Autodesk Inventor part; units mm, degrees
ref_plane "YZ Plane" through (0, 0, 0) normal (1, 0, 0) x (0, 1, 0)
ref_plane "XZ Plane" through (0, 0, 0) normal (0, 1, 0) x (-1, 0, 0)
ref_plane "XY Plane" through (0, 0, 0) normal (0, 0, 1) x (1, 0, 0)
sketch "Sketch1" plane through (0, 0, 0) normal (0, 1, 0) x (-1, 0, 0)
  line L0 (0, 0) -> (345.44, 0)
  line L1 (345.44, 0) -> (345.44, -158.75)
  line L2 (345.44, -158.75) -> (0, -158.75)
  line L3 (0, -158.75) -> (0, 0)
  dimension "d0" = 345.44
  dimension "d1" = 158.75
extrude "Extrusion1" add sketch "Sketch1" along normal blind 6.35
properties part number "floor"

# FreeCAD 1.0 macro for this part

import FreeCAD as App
import Part
import Sketcher
from FreeCAD import Vector
Q = App.Units.Quantity


def add_polygon(sketch, points):
    """Adds a closed chain of lines whose ends are joined by coincident constraints."""
    first, n = sketch.GeometryCount, len(points)
    for a, b in zip(points, points[1:] + points[:1]):
        sketch.addGeometry(Part.LineSegment(App.Vector(*a, 0), App.Vector(*b, 0)), False)
    for i in range(n):
        sketch.addConstraint(Sketcher.Constraint("Coincident", first + i, 2, first + (i + 1) % n, 1))

doc = App.newDocument("Part")
body = doc.addObject("PartDesign::Body", "Body")

sketch1 = body.newObject("Sketcher::SketchObject", "Sketch")
sketch1.AttachmentSupport = (doc.getObject("XZ_Plane"), [""])
sketch1.MapMode = "FlatFace"
add_polygon(sketch1, [(-345, 0), (0, 0), (0, -159), (-345, -159)])
sketch1.addConstraint([
    Sketcher.Constraint("Horizontal", 0),
    Sketcher.Constraint("Vertical", 1),
    Sketcher.Constraint("Horizontal", 2),
    Sketcher.Constraint("Vertical", 3),
    Sketcher.Constraint("Coincident", 0, 2, -1, 1),
    Sketcher.Constraint("DistanceX", 0, 1, 0, 2, Q("13.6 in")),
    Sketcher.Constraint("DistanceY", 1, 2, 1, 1, Q("6.25 in")),
])
pad1 = body.newObject("PartDesign::Pad", "Pad")
pad1.Profile = sketch1
pad1.Length = Q("0.25 in")
pad1.Reversed = True

doc.recompute()
